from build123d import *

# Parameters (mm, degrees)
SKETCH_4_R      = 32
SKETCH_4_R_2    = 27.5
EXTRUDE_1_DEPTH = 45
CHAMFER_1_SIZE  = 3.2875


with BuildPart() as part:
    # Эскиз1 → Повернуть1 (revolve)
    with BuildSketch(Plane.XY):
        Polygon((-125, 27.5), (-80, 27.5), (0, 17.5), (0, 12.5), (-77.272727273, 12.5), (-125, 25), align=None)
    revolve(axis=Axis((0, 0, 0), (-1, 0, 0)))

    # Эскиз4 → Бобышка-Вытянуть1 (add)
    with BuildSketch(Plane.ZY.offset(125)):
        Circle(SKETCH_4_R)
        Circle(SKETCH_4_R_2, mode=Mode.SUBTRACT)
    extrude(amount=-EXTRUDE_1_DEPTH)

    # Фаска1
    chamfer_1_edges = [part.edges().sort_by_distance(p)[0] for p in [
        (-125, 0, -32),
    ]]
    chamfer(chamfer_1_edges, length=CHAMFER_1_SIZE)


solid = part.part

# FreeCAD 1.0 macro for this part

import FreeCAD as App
import Part
import Sketcher


def edges_at(feature, points):
    """Names of the edges that pass closest to the given points."""
    edges = feature.Shape.Edges
    near = lambda p: min(range(len(edges)), key=lambda i: edges[i].distToShape(Part.Vertex(*p))[0])
    return sorted({f"Edge{near(p) + 1}" for p in points})

doc = App.newDocument("Part")
body = doc.addObject("PartDesign::Body", "Body")

# Sketch on XY plane
sketch1 = body.newObject("Sketcher::SketchObject", "Sketch")
sketch1.AttachmentSupport = (doc.getObject("XY_Plane"), [""])
sketch1.MapMode = "FlatFace"
sketch1.addGeometry(Part.LineSegment(App.Vector(-80, 27.5, 0), App.Vector(-125, 27.5, 0)), False)
sketch1.addGeometry(Part.LineSegment(App.Vector(-125, 27.5, 0), App.Vector(-125, 25, 0)), False)
sketch1.addGeometry(Part.LineSegment(App.Vector(-125, 25, 0), App.Vector(-77.3, 12.5, 0)), False)
sketch1.addGeometry(Part.LineSegment(App.Vector(-77.3, 12.5, 0), App.Vector(0, 12.5, 0)), False)
sketch1.addGeometry(Part.LineSegment(App.Vector(0, 12.5, 0), App.Vector(0, 17.5, 0)), False)
sketch1.addGeometry(Part.LineSegment(App.Vector(0, 17.5, 0), App.Vector(-80, 27.5, 0)), False)
sketch1.addConstraint(Sketcher.Constraint("Coincident", 0, 2, 1, 1))
sketch1.addConstraint(Sketcher.Constraint("Coincident", 1, 2, 2, 1))
sketch1.addConstraint(Sketcher.Constraint("Coincident", 2, 2, 3, 1))
sketch1.addConstraint(Sketcher.Constraint("Coincident", 3, 2, 4, 1))
sketch1.addConstraint(Sketcher.Constraint("Coincident", 4, 2, 5, 1))
sketch1.addConstraint(Sketcher.Constraint("Coincident", 5, 2, 0, 1))
sketch1.addConstraint(Sketcher.Constraint("Horizontal", 0))
sketch1.addConstraint(Sketcher.Constraint("Vertical", 1))
sketch1.addConstraint(Sketcher.Constraint("Horizontal", 3))
sketch1.addConstraint(Sketcher.Constraint("Vertical", 4))
sketch1.addConstraint(Sketcher.Constraint("PointOnObject", 3, 2, -2))
sketch1.addConstraint(Sketcher.Constraint("DistanceX", 0, 2, 0, 1, 45.0))
sketch1.addConstraint(Sketcher.Constraint("DistanceY", 4, 1, 4, 2, 5.0))
sketch1.addConstraint(Sketcher.Constraint("DistanceY", 1, 2, 1, 1, 2.5))
sketch1.addConstraint(Sketcher.Constraint("DistanceX", 0, 2, -1, 1, 125.0))
sketch1.addConstraint(Sketcher.Constraint("DistanceY", -1, 1, 1, 2, 25.0))
sketch1.addConstraint(Sketcher.Constraint("DistanceY", 2, 2, 0, 2, 15.0))
sketch1.addConstraint(Sketcher.Constraint("Distance", 2, 49.33703))
revolution = body.newObject("PartDesign::Revolution", "Revolution")
revolution.Profile = sketch1
revolution.ReferenceAxis = (sketch1, ["H_Axis"])
revolution.Angle = 360

# Sketch on YZ plane
sketch2 = body.newObject("Sketcher::SketchObject", "Sketch001")
sketch2.AttachmentSupport = (doc.getObject("YZ_Plane"), [""])
sketch2.MapMode = "FlatFace"
sketch2.AttachmentOffset = App.Placement(App.Vector(0, 0, -125), App.Rotation())
sketch2.addGeometry(Part.Circle(App.Vector(0, 0, 0), App.Vector(0, 0, 1), 32), False)
sketch2.addGeometry(Part.Circle(App.Vector(0, 0, 0), App.Vector(0, 0, 1), 28), False)
sketch2.addConstraint(Sketcher.Constraint("Coincident", 0, 3, -1, 1))
sketch2.addConstraint(Sketcher.Constraint("Coincident", 1, 3, -1, 1))
sketch2.addConstraint(Sketcher.Constraint("Diameter", 0, 64.0))
sketch2.addConstraint(Sketcher.Constraint("Diameter", 1, 55.0))
pad1 = body.newObject("PartDesign::Pad", "Pad")
pad1.Profile = sketch2
pad1.Length = 45
doc.recompute()

chamfer = body.newObject("PartDesign::Chamfer", "Chamfer")
chamfer.Base = (pad1, edges_at(pad1, [(-125, 0, -32)]))
chamfer.Size = 3.2875

doc.recompute()
